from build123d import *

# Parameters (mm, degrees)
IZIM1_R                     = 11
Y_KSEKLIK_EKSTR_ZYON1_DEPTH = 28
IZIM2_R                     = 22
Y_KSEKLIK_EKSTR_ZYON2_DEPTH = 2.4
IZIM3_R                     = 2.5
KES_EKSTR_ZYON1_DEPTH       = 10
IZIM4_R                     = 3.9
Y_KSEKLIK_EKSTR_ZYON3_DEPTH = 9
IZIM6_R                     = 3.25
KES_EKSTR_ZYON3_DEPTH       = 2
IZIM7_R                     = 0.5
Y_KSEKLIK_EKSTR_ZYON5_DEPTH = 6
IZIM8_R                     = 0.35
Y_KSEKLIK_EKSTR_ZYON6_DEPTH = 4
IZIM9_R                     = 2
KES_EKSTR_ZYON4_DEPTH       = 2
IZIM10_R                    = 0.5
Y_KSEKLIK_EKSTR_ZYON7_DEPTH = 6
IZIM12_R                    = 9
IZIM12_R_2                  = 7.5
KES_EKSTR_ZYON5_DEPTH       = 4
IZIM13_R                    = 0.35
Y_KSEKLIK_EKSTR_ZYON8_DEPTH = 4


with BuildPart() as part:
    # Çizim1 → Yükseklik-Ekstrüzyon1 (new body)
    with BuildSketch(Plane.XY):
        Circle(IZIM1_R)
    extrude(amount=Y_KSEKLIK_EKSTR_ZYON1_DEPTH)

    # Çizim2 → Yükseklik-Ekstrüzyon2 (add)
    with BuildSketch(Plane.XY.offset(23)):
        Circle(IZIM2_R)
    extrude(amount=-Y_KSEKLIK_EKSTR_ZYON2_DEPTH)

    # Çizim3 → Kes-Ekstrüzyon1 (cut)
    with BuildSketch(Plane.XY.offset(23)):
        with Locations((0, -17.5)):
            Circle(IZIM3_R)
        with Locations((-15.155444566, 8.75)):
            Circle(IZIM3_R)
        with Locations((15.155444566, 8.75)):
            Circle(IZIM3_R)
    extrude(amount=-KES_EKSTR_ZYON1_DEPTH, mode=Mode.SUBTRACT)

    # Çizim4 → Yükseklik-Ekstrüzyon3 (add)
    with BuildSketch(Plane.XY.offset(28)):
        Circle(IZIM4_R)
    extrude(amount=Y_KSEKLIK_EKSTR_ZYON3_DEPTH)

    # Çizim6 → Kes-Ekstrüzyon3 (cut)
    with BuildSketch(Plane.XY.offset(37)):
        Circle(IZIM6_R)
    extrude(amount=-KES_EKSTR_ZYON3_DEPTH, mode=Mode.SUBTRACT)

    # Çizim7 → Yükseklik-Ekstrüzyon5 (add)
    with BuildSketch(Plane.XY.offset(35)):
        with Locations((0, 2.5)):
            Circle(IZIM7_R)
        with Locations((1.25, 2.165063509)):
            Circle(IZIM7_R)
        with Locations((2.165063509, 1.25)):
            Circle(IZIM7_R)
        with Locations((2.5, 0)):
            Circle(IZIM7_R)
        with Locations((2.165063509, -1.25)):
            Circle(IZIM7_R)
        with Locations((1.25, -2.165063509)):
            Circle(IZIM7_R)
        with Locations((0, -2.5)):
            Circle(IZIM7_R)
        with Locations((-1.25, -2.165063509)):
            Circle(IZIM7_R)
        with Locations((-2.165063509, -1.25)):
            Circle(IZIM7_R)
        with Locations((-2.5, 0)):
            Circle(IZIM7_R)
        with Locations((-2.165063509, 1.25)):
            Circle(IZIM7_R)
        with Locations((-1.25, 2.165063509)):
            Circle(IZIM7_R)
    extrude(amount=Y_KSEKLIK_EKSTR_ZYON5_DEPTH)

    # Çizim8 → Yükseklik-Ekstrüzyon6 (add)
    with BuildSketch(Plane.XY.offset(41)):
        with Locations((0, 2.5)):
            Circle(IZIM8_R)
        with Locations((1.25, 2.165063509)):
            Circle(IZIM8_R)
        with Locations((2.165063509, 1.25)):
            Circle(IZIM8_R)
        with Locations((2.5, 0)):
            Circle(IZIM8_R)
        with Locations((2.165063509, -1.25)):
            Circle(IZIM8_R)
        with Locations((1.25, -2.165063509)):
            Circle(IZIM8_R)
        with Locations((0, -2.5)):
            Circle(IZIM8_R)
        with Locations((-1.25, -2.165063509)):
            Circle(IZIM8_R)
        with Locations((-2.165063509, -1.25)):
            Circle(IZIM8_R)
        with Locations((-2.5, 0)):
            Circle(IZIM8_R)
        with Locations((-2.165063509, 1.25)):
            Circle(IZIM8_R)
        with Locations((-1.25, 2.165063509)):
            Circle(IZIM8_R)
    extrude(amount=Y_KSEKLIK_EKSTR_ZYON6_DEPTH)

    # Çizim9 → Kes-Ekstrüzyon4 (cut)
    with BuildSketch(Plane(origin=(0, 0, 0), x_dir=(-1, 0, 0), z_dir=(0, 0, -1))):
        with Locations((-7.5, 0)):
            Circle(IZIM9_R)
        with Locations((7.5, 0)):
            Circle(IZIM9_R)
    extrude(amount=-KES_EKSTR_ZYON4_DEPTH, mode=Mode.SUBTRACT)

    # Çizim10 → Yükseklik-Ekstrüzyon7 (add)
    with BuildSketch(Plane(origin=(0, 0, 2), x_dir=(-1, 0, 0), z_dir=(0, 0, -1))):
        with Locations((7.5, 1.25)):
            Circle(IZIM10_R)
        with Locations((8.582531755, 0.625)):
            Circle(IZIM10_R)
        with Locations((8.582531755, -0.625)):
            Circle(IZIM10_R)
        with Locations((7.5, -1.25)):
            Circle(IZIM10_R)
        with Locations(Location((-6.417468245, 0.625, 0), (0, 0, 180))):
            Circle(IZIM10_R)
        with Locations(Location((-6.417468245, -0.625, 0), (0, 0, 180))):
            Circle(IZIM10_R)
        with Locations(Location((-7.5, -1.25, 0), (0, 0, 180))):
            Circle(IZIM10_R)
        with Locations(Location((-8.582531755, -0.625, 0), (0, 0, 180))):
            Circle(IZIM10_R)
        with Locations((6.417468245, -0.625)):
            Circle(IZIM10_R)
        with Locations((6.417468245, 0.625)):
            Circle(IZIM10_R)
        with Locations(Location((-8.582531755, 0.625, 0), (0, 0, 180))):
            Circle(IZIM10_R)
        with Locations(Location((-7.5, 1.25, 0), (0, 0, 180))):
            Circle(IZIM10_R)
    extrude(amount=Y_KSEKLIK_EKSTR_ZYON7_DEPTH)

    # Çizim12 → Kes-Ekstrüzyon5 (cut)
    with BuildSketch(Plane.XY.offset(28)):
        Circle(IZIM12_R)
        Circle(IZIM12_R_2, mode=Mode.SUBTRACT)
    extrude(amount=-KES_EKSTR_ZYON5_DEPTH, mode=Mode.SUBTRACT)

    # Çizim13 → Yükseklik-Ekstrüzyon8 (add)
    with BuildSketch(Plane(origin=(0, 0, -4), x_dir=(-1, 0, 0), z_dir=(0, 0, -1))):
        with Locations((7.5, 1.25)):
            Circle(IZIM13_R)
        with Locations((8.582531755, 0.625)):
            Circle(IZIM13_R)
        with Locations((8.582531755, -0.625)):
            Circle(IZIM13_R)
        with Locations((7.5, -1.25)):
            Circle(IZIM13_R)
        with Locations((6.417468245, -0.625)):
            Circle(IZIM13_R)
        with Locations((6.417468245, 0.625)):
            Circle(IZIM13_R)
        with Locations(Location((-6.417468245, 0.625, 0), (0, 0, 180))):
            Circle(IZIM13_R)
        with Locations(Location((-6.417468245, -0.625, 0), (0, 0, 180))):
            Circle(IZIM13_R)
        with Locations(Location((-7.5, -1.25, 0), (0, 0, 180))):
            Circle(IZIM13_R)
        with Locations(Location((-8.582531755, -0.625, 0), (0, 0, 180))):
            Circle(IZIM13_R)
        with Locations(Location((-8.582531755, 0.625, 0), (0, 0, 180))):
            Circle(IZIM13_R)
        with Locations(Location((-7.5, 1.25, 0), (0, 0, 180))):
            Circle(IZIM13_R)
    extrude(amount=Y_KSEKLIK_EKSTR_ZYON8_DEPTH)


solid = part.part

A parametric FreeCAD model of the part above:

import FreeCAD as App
import Part
import Sketcher
from FreeCAD import Vector

doc = App.newDocument("Part")
body = doc.addObject("PartDesign::Body", "Body")

# Sketch on XY plane
sketch1 = body.newObject("Sketcher::SketchObject", "Sketch")
sketch1.AttachmentSupport = (doc.getObject("XY_Plane"), [""])
sketch1.MapMode = "FlatFace"
sketch1.addGeometry(Part.Circle(Vector(0, 0, 0), Vector(0, 0, 1), 11), False)
sketch1.addConstraint(Sketcher.Constraint("Coincident", 0, 3, -1, 1))
sketch1.addConstraint(Sketcher.Constraint("Diameter", 0, 22.0))
pad1 = body.newObject("PartDesign::Pad", "Pad")
pad1.Profile = sketch1
pad1.Length = 28

# Sketch on XY plane
sketch2 = body.newObject("Sketcher::SketchObject", "Sketch001")
sketch2.AttachmentSupport = (doc.getObject("XY_Plane"), [""])
sketch2.MapMode = "FlatFace"
sketch2.AttachmentOffset = App.Placement(Vector(0, 0, 23), App.Rotation())
sketch2.addGeometry(Part.Circle(Vector(0, 0, 0), Vector(0, 0, 1), 22), False)
sketch2.addConstraint(Sketcher.Constraint("Coincident", 0, 3, -1, 1))
sketch2.addConstraint(Sketcher.Constraint("Diameter", 0, 44.0))
pad2 = body.newObject("PartDesign::Pad", "Pad001")
pad2.Profile = sketch2
pad2.Length = 2.4
pad2.Reversed = True

# Sketch on XY plane
sketch3 = body.newObject("Sketcher::SketchObject", "Sketch002")
sketch3.AttachmentSupport = (doc.getObject("XY_Plane"), [""])
sketch3.MapMode = "FlatFace"
sketch3.AttachmentOffset = App.Placement(Vector(0, 0, 23), App.Rotation())
sketch3.addGeometry(Part.Circle(Vector(0, -17.5, 0), Vector(0, 0, 1), 2.5), False)
sketch3.addGeometry(Part.Circle(Vector(-15.2, 8.8, 0), Vector(0, 0, 1), 2.5), False)
sketch3.addGeometry(Part.Circle(Vector(15.2, 8.8, 0), Vector(0, 0, 1), 2.5), False)
sketch3.addConstraint(Sketcher.Constraint("Equal", 0, 1))
sketch3.addConstraint(Sketcher.Constraint("Equal", 1, 2))
sketch3.addConstraint(Sketcher.Constraint("Symmetric", 1, 3, 2, 3, -2))
sketch3.addConstraint(Sketcher.Constraint("PointOnObject", 0, 3, -2))
sketch3.addConstraint(Sketcher.Constraint("Diameter", 0, 5.0))
sketch3.addConstraint(Sketcher.Constraint("DistanceY", 0, 3, -1, 1, 17.5))
sketch3.addConstraint(Sketcher.Constraint("DistanceY", -1, 1, 1, 3, 8.75))
sketch3.addConstraint(Sketcher.Constraint("DistanceX", 1, 3, 2, 3, 30.310889))
pocket1 = body.newObject("PartDesign::Pocket", "Pocket")
pocket1.Profile = sketch3
pocket1.Length = 10

# Sketch on XY plane
sketch4 = body.newObject("Sketcher::SketchObject", "Sketch003")
sketch4.AttachmentSupport = (doc.getObject("XY_Plane"), [""])
sketch4.MapMode = "FlatFace"
sketch4.AttachmentOffset = App.Placement(Vector(0, 0, 28), App.Rotation())
sketch4.addGeometry(Part.Circle(Vector(0, 0, 0), Vector(0, 0, 1), 3.9), False)
sketch4.addConstraint(Sketcher.Constraint("Coincident", 0, 3, -1, 1))
sketch4.addConstraint(Sketcher.Constraint("Diameter", 0, 7.8))
pad3 = body.newObject("PartDesign::Pad", "Pad002")
pad3.Profile = sketch4
pad3.Length = 9

# Sketch on XY plane
sketch5 = body.newObject("Sketcher::SketchObject", "Sketch004")
sketch5.AttachmentSupport = (doc.getObject("XY_Plane"), [""])
sketch5.MapMode = "FlatFace"
sketch5.AttachmentOffset = App.Placement(Vector(0, 0, 37), App.Rotation())
sketch5.addGeometry(Part.Circle(Vector(0, 0, 0), Vector(0, 0, 1), 3.2), False)
sketch5.addConstraint(Sketcher.Constraint("Coincident", 0, 3, -1, 1))
sketch5.addConstraint(Sketcher.Constraint("Diameter", 0, 6.5))
pocket2 = body.newObject("PartDesign::Pocket", "Pocket001")
pocket2.Profile = sketch5
pocket2.Length = 2

# Sketch on XY plane
sketch6 = body.newObject("Sketcher::SketchObject", "Sketch005")
sketch6.AttachmentSupport = (doc.getObject("XY_Plane"), [""])
sketch6.MapMode = "FlatFace"
sketch6.AttachmentOffset = App.Placement(Vector(0, 0, 35), App.Rotation())
sketch6.addGeometry(Part.Circle(Vector(0, 2.5, 0), Vector(0, 0, 1), 0.5), False)
sketch6.addGeometry(Part.Circle(Vector(1.2, 2.2, 0), Vector(0, 0, 1), 0.5), False)
sketch6.addGeometry(Part.Circle(Vector(2.2, 1.2, 0), Vector(0, 0, 1), 0.5), False)
sketch6.addGeometry(Part.Circle(Vector(2.5, 0, 0), Vector(0, 0, 1), 0.5), False)
sketch6.addGeometry(Part.Circle(Vector(2.2, -1.2, 0), Vector(0, 0, 1), 0.5), False)
sketch6.addGeometry(Part.Circle(Vector(1.2, -2.2, 0), Vector(0, 0, 1), 0.5), False)
sketch6.addGeometry(Part.Circle(Vector(0, -2.5, 0), Vector(0, 0, 1), 0.5), False)
sketch6.addGeometry(Part.Circle(Vector(-1.2, -2.2, 0), Vector(0, 0, 1), 0.5), False)
sketch6.addGeometry(Part.Circle(Vector(-2.2, -1.2, 0), Vector(0, 0, 1), 0.5), False)
sketch6.addGeometry(Part.Circle(Vector(-2.5, 0, 0), Vector(0, 0, 1), 0.5), False)
sketch6.addGeometry(Part.Circle(Vector(-2.2, 1.2, 0), Vector(0, 0, 1), 0.5), False)
sketch6.addGeometry(Part.Circle(Vector(-1.2, 2.2, 0), Vector(0, 0, 1), 0.5), False)
sketch6.addConstraint(Sketcher.Constraint("Equal", 0, 1))
sketch6.addConstraint(Sketcher.Constraint("Equal", 1, 2))
sketch6.addConstraint(Sketcher.Constraint("Equal", 2, 3))
sketch6.addConstraint(Sketcher.Constraint("Equal", 3, 4))
sketch6.addConstraint(Sketcher.Constraint("Equal", 4, 5))
sketch6.addConstraint(Sketcher.Constraint("Equal", 5, 6))
sketch6.addConstraint(Sketcher.Constraint("Equal", 6, 7))
sketch6.addConstraint(Sketcher.Constraint("Equal", 7, 8))
sketch6.addConstraint(Sketcher.Constraint("Equal", 8, 9))
sketch6.addConstraint(Sketcher.Constraint("Equal", 9, 10))
sketch6.addConstraint(Sketcher.Constraint("Equal", 10, 11))
sketch6.addConstraint(Sketcher.Constraint("Symmetric", 0, 3, 6, 3, -1, 1))
sketch6.addConstraint(Sketcher.Constraint("Symmetric", 1, 3, 7, 3, -1, 1))
sketch6.addConstraint(Sketcher.Constraint("Symmetric", 2, 3, 8, 3, -1, 1))
sketch6.addConstraint(Sketcher.Constraint("Symmetric", 3, 3, 9, 3, -1, 1))
sketch6.addConstraint(Sketcher.Constraint("Symmetric", 4, 3, 10, 3, -1, 1))
sketch6.addConstraint(Sketcher.Constraint("Symmetric", 5, 3, 11, 3, -1, 1))
sketch6.addConstraint(Sketcher.Constraint("Symmetric", 5, 3, 7, 3, -2))
sketch6.addConstraint(Sketcher.Constraint("Symmetric", 4, 3, 8, 3, -2))
sketch6.addConstraint(Sketcher.Constraint("PointOnObject", 0, 3, -2))
sketch6.addConstraint(Sketcher.Constraint("PointOnObject", 3, 3, -1))
sketch6.addConstraint(Sketcher.Constraint("Diameter", 0, 1.0))
sketch6.addConstraint(Sketcher.Constraint("DistanceY", -1, 1, 0, 3, 2.5))
sketch6.addConstraint(Sketcher.Constraint("DistanceX", -1, 1, 3, 3, 2.5))
sketch6.addConstraint(Sketcher.Constraint("DistanceY", 4, 3, 2, 3, 2.5))
sketch6.addConstraint(Sketcher.Constraint("DistanceX", 7, 3, 5, 3, 2.5))
sketch6.addConstraint(Sketcher.Constraint("DistanceY", -1, 1, 1, 3, 2.165064))
sketch6.addConstraint(Sketcher.Constraint("DistanceX", -1, 1, 2, 3, 2.165064))
pad4 = body.newObject("PartDesign::Pad", "Pad003")
pad4.Profile = sketch6
pad4.Length = 6

# Sketch on XY plane
sketch7 = body.newObject("Sketcher::SketchObject", "Sketch006")
sketch7.AttachmentSupport = (doc.getObject("XY_Plane"), [""])
sketch7.MapMode = "FlatFace"
sketch7.AttachmentOffset = App.Placement(Vector(0, 0, 41), App.Rotation())
sketch7.addGeometry(Part.Circle(Vector(0, 2.5, 0), Vector(0, 0, 1), 0.35), False)
sketch7.addGeometry(Part.Circle(Vector(1.25, 2.17, 0), Vector(0, 0, 1), 0.35), False)
sketch7.addGeometry(Part.Circle(Vector(2.17, 1.25, 0), Vector(0, 0, 1), 0.35), False)
sketch7.addGeometry(Part.Circle(Vector(2.5, 0, 0), Vector(0, 0, 1), 0.35), False)
sketch7.addGeometry(Part.Circle(Vector(2.17, -1.25, 0), Vector(0, 0, 1), 0.35), False)
sketch7.addGeometry(Part.Circle(Vector(1.25, -2.17, 0), Vector(0, 0, 1), 0.35), False)
sketch7.addGeometry(Part.Circle(Vector(0, -2.5, 0), Vector(0, 0, 1), 0.35), False)
sketch7.addGeometry(Part.Circle(Vector(-1.25, -2.17, 0), Vector(0, 0, 1), 0.35), False)
sketch7.addGeometry(Part.Circle(Vector(-2.17, -1.25, 0), Vector(0, 0, 1), 0.35), False)
sketch7.addGeometry(Part.Circle(Vector(-2.5, 0, 0), Vector(0, 0, 1), 0.35), False)
sketch7.addGeometry(Part.Circle(Vector(-2.17, 1.25, 0), Vector(0, 0, 1), 0.35), False)
sketch7.addGeometry(Part.Circle(Vector(-1.25, 2.17, 0), Vector(0, 0, 1), 0.35), False)
sketch7.addConstraint(Sketcher.Constraint("Equal", 0, 1))
sketch7.addConstraint(Sketcher.Constraint("Equal", 1, 2))
sketch7.addConstraint(Sketcher.Constraint("Equal", 2, 3))
sketch7.addConstraint(Sketcher.Constraint("Equal", 3, 4))
sketch7.addConstraint(Sketcher.Constraint("Equal", 4, 5))
sketch7.addConstraint(Sketcher.Constraint("Equal", 5, 6))
sketch7.addConstraint(Sketcher.Constraint("Equal", 6, 7))
sketch7.addConstraint(Sketcher.Constraint("Equal", 7, 8))
sketch7.addConstraint(Sketcher.Constraint("Equal", 8, 9))
sketch7.addConstraint(Sketcher.Constraint("Equal", 9, 10))
sketch7.addConstraint(Sketcher.Constraint("Equal", 10, 11))
sketch7.addConstraint(Sketcher.Constraint("Symmetric", 0, 3, 6, 3, -1, 1))
sketch7.addConstraint(Sketcher.Constraint("Symmetric", 1, 3, 7, 3, -1, 1))
sketch7.addConstraint(Sketcher.Constraint("Symmetric", 2, 3, 8, 3, -1, 1))
sketch7.addConstraint(Sketcher.Constraint("Symmetric", 3, 3, 9, 3, -1, 1))
sketch7.addConstraint(Sketcher.Constraint("Symmetric", 4, 3, 10, 3, -1, 1))
sketch7.addConstraint(Sketcher.Constraint("Symmetric", 5, 3, 11, 3, -1, 1))
sketch7.addConstraint(Sketcher.Constraint("Symmetric", 5, 3, 7, 3, -2))
sketch7.addConstraint(Sketcher.Constraint("Symmetric", 4, 3, 8, 3, -2))
sketch7.addConstraint(Sketcher.Constraint("PointOnObject", 0, 3, -2))
sketch7.addConstraint(Sketcher.Constraint("PointOnObject", 3, 3, -1))
sketch7.addConstraint(Sketcher.Constraint("Diameter", 0, 0.7))
sketch7.addConstraint(Sketcher.Constraint("DistanceY", -1, 1, 0, 3, 2.5))
sketch7.addConstraint(Sketcher.Constraint("DistanceX", -1, 1, 3, 3, 2.5))
sketch7.addConstraint(Sketcher.Constraint("DistanceY", 4, 3, 2, 3, 2.5))
sketch7.addConstraint(Sketcher.Constraint("DistanceX", 7, 3, 5, 3, 2.5))
sketch7.addConstraint(Sketcher.Constraint("DistanceY", -1, 1, 1, 3, 2.165064))
sketch7.addConstraint(Sketcher.Constraint("DistanceX", -1, 1, 2, 3, 2.165064))
pad5 = body.newObject("PartDesign::Pad", "Pad004")
pad5.Profile = sketch7
pad5.Length = 4

# Sketch on XY plane
sketch8 = body.newObject("Sketcher::SketchObject", "Sketch007")
sketch8.AttachmentSupport = (doc.getObject("XY_Plane"), [""])
sketch8.MapMode = "FlatFace"
sketch8.addGeometry(Part.Circle(Vector(7.5, 0, 0), Vector(0, 0, 1), 2), False)
sketch8.addGeometry(Part.Circle(Vector(-7.5, 0, 0), Vector(0, 0, 1), 2), False)
sketch8.addConstraint(Sketcher.Constraint("Equal", 0, 1))
sketch8.addConstraint(Sketcher.Constraint("Symmetric", 0, 3, 1, 3, -1, 1))
sketch8.addConstraint(Sketcher.Constraint("PointOnObject", 0, 3, -1))
sketch8.addConstraint(Sketcher.Constraint("Diameter", 0, 4.0))
sketch8.addConstraint(Sketcher.Constraint("DistanceX", 1, 3, 0, 3, 15.0))
pocket3 = body.newObject("PartDesign::Pocket", "Pocket002")
pocket3.Profile = sketch8
pocket3.Length = 2
pocket3.Reversed = True

# Sketch on XY plane
sketch9 = body.newObject("Sketcher::SketchObject", "Sketch008")
sketch9.AttachmentSupport = (doc.getObject("XY_Plane"), [""])
sketch9.MapMode = "FlatFace"
sketch9.AttachmentOffset = App.Placement(Vector(0, 0, 2), App.Rotation())
sketch9.addGeometry(Part.Circle(Vector(-7.5, 1.2, 0), Vector(0, 0, 1), 0.5), False)
sketch9.addGeometry(Part.Circle(Vector(-8.6, 0.6, 0), Vector(0, 0, 1), 0.5), False)
sketch9.addGeometry(Part.Circle(Vector(-8.6, -0.6, 0), Vector(0, 0, 1), 0.5), False)
sketch9.addGeometry(Part.Circle(Vector(-7.5, -1.2, 0), Vector(0, 0, 1), 0.5), False)
sketch9.addGeometry(Part.Circle(Vector(6.4, 0.6, 0), Vector(0, 0, 1), 0.5), False)
sketch9.addGeometry(Part.Circle(Vector(6.4, -0.6, 0), Vector(0, 0, 1), 0.5), False)
sketch9.addGeometry(Part.Circle(Vector(7.5, -1.2, 0), Vector(0, 0, 1), 0.5), False)
sketch9.addGeometry(Part.Circle(Vector(8.6, -0.6, 0), Vector(0, 0, 1), 0.5), False)
sketch9.addGeometry(Part.Circle(Vector(-6.4, -0.6, 0), Vector(0, 0, 1), 0.5), False)
sketch9.addGeometry(Part.Circle(Vector(-6.4, 0.6, 0), Vector(0, 0, 1), 0.5), False)
sketch9.addGeometry(Part.Circle(Vector(8.6, 0.6, 0), Vector(0, 0, 1), 0.5), False)
sketch9.addGeometry(Part.Circle(Vector(7.5, 1.2, 0), Vector(0, 0, 1), 0.5), False)
sketch9.addConstraint(Sketcher.Constraint("Equal", 0, 1))
sketch9.addConstraint(Sketcher.Constraint("Equal", 1, 2))
sketch9.addConstraint(Sketcher.Constraint("Equal", 2, 3))
sketch9.addConstraint(Sketcher.Constraint("Equal", 3, 4))
sketch9.addConstraint(Sketcher.Constraint("Equal", 4, 5))
sketch9.addConstraint(Sketcher.Constraint("Equal", 5, 6))
sketch9.addConstraint(Sketcher.Constraint("Equal", 6, 7))
sketch9.addConstraint(Sketcher.Constraint("Equal", 7, 8))
sketch9.addConstraint(Sketcher.Constraint("Equal", 8, 9))
sketch9.addConstraint(Sketcher.Constraint("Equal", 9, 10))
sketch9.addConstraint(Sketcher.Constraint("Equal", 10, 11))
sketch9.addConstraint(Sketcher.Constraint("Symmetric", 0, 3, 6, 3, -1, 1))
sketch9.addConstraint(Sketcher.Constraint("Symmetric", 1, 3, 7, 3, -1, 1))
sketch9.addConstraint(Sketcher.Constraint("Symmetric", 4, 3, 8, 3, -1, 1))
sketch9.addConstraint(Sketcher.Constraint("Symmetric", 5, 3, 9, 3, -1, 1))
sketch9.addConstraint(Sketcher.Constraint("Symmetric", 2, 3, 10, 3, -1, 1))
sketch9.addConstraint(Sketcher.Constraint("Symmetric", 3, 3, 11, 3, -1, 1))
sketch9.addConstraint(Sketcher.Constraint("Symmetric", 3, 3, 6, 3, -2))
sketch9.addConstraint(Sketcher.Constraint("Symmetric", 2, 3, 7, 3, -2))
sketch9.addConstraint(Sketcher.Constraint("Symmetric", 5, 3, 8, 3, -2))
sketch9.addConstraint(Sketcher.Constraint("Horizontal", 1, 3, 4, 3))
sketch9.addConstraint(Sketcher.Constraint("Diameter", 0, 1.0))
sketch9.addConstraint(Sketcher.Constraint("DistanceX", 1, 3, 4, 3, 15.0))
sketch9.addConstraint(Sketcher.Constraint("DistanceX", 3, 3, 6, 3, 15.0))
sketch9.addConstraint(Sketcher.Constraint("DistanceY", 3, 3, 0, 3, 2.5))
sketch9.addConstraint(Sketcher.Constraint("DistanceY", 2, 3, 1, 3, 1.25))
sketch9.addConstraint(Sketcher.Constraint("DistanceX", 1, 3, -1, 1, 8.582532))
pad6 = body.newObject("PartDesign::Pad", "Pad005")
pad6.Profile = sketch9
pad6.Length = 6
pad6.Reversed = True

# Sketch on XY plane
sketch10 = body.newObject("Sketcher::SketchObject", "Sketch009")
sketch10.AttachmentSupport = (doc.getObject("XY_Plane"), [""])
sketch10.MapMode = "FlatFace"
sketch10.AttachmentOffset = App.Placement(Vector(0, 0, 28), App.Rotation())
sketch10.addGeometry(Part.Circle(Vector(0, 0, 0), Vector(0, 0, 1), 9), False)
sketch10.addGeometry(Part.Circle(Vector(0, 0, 0), Vector(0, 0, 1), 8), False)
sketch10.addConstraint(Sketcher.Constraint("Coincident", 0, 3, -1, 1))
sketch10.addConstraint(Sketcher.Constraint("Coincident", 1, 3, -1, 1))
sketch10.addConstraint(Sketcher.Constraint("Diameter", 0, 18.0))
sketch10.addConstraint(Sketcher.Constraint("Diameter", 1, 15.0))
pocket4 = body.newObject("PartDesign::Pocket", "Pocket003")
pocket4.Profile = sketch10
pocket4.Length = 4

# Sketch on XY plane
sketch11 = body.newObject("Sketcher::SketchObject", "Sketch010")
sketch11.AttachmentSupport = (doc.getObject("XY_Plane"), [""])
sketch11.MapMode = "FlatFace"
sketch11.AttachmentOffset = App.Placement(Vector(0, 0, -4), App.Rotation())
sketch11.addGeometry(Part.Circle(Vector(-7.5, 1.25, 0), Vector(0, 0, 1), 0.35), False)
sketch11.addGeometry(Part.Circle(Vector(-8.58, 0.62, 0), Vector(0, 0, 1), 0.35), False)
sketch11.addGeometry(Part.Circle(Vector(-8.58, -0.62, 0), Vector(0, 0, 1), 0.35), False)
sketch11.addGeometry(Part.Circle(Vector(-7.5, -1.25, 0), Vector(0, 0, 1), 0.35), False)
sketch11.addGeometry(Part.Circle(Vector(-6.42, -0.62, 0), Vector(0, 0, 1), 0.35), False)
sketch11.addGeometry(Part.Circle(Vector(-6.42, 0.62, 0), Vector(0, 0, 1), 0.35), False)
sketch11.addGeometry(Part.Circle(Vector(6.42, 0.62, 0), Vector(0, 0, 1), 0.35), False)
sketch11.addGeometry(Part.Circle(Vector(6.42, -0.62, 0), Vector(0, 0, 1), 0.35), False)
sketch11.addGeometry(Part.Circle(Vector(7.5, -1.25, 0), Vector(0, 0, 1), 0.35), False)
sketch11.addGeometry(Part.Circle(Vector(8.58, -0.62, 0), Vector(0, 0, 1), 0.35), False)
sketch11.addGeometry(Part.Circle(Vector(8.58, 0.62, 0), Vector(0, 0, 1), 0.35), False)
sketch11.addGeometry(Part.Circle(Vector(7.5, 1.25, 0), Vector(0, 0, 1), 0.35), False)
sketch11.addConstraint(Sketcher.Constraint("Equal", 0, 1))
sketch11.addConstraint(Sketcher.Constraint("Equal", 1, 2))
sketch11.addConstraint(Sketcher.Constraint("Equal", 2, 3))
sketch11.addConstraint(Sketcher.Constraint("Equal", 3, 4))
sketch11.addConstraint(Sketcher.Constraint("Equal", 4, 5))
sketch11.addConstraint(Sketcher.Constraint("Equal", 5, 6))
sketch11.addConstraint(Sketcher.Constraint("Equal", 6, 7))
sketch11.addConstraint(Sketcher.Constraint("Equal", 7, 8))
sketch11.addConstraint(Sketcher.Constraint("Equal", 8, 9))
sketch11.addConstraint(Sketcher.Constraint("Equal", 9, 10))
sketch11.addConstraint(Sketcher.Constraint("Equal", 10, 11))
sketch11.addConstraint(Sketcher.Constraint("Symmetric", 4, 3, 6, 3, -1, 1))
sketch11.addConstraint(Sketcher.Constraint("Symmetric", 5, 3, 7, 3, -1, 1))
sketch11.addConstraint(Sketcher.Constraint("Symmetric", 0, 3, 8, 3, -1, 1))
sketch11.addConstraint(Sketcher.Constraint("Symmetric", 1, 3, 9, 3, -1, 1))
sketch11.addConstraint(Sketcher.Constraint("Symmetric", 2, 3, 10, 3, -1, 1))
sketch11.addConstraint(Sketcher.Constraint("Symmetric", 3, 3, 11, 3, -1, 1))
sketch11.addConstraint(Sketcher.Constraint("Symmetric", 5, 3, 6, 3, -2))
sketch11.addConstraint(Sketcher.Constraint("Symmetric", 3, 3, 8, 3, -2))
sketch11.addConstraint(Sketcher.Constraint("Symmetric", 2, 3, 9, 3, -2))
sketch11.addConstraint(Sketcher.Constraint("Horizontal", 2, 3, 4, 3))
sketch11.addConstraint(Sketcher.Constraint("Diameter", 0, 0.7))
sketch11.addConstraint(Sketcher.Constraint("DistanceX", 1, 3, 6, 3, 15.0))
sketch11.addConstraint(Sketcher.Constraint("DistanceX", 3, 3, 8, 3, 15.0))
sketch11.addConstraint(Sketcher.Constraint("DistanceY", 3, 3, 0, 3, 2.5))
sketch11.addConstraint(Sketcher.Constraint("DistanceY", 2, 3, 1, 3, 1.25))
sketch11.addConstraint(Sketcher.Constraint("DistanceX", 1, 3, -1, 1, 8.582532))
pad7 = body.newObject("PartDesign::Pad", "Pad006")
pad7.Profile = sketch11
pad7.Length = 4
pad7.Reversed = True

doc.recompute()
